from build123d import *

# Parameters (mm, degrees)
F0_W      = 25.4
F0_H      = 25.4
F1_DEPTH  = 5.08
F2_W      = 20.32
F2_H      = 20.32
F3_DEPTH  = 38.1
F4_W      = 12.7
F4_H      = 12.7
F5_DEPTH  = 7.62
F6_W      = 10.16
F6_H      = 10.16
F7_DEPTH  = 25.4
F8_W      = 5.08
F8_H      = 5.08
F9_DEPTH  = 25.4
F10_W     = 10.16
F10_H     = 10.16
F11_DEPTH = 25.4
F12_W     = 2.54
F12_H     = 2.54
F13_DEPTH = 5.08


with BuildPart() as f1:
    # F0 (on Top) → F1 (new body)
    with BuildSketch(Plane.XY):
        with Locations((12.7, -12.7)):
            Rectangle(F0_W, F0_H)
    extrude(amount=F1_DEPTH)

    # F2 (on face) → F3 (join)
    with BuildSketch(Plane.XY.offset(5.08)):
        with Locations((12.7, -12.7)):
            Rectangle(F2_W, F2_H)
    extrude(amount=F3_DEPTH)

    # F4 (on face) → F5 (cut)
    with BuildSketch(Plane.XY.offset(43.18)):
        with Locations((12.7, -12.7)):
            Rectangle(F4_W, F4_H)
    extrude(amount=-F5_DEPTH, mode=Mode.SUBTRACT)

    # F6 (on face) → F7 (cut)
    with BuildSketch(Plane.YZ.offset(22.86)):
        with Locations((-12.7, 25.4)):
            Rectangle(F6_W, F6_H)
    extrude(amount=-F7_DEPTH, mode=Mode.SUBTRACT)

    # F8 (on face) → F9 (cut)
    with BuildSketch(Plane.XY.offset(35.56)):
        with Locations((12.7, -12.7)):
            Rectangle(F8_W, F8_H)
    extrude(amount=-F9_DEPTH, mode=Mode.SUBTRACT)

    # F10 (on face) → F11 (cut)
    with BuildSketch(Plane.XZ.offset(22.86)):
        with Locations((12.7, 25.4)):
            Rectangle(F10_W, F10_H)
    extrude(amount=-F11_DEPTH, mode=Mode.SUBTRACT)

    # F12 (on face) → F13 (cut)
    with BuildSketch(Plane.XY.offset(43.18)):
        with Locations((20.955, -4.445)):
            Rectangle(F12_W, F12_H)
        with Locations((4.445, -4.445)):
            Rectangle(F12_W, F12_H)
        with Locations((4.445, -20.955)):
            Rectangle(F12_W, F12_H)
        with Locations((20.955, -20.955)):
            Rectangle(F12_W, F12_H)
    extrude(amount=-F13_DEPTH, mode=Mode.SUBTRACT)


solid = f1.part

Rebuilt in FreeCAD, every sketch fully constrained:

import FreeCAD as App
import Part
import Sketcher

V = App.Vector
Q = App.Units.Quantity


def add_polygon(sketch, points):
    """Adds a closed chain of lines whose ends are joined by coincident constraints."""
    first, n = sketch.GeometryCount, len(points)
    for a, b in zip(points, points[1:] + points[:1]):
        sketch.addGeometry(Part.LineSegment(App.Vector(*a, 0), App.Vector(*b, 0)), False)
    for i in range(n):
        sketch.addConstraint(Sketcher.Constraint("Coincident", first + i, 2, first + (i + 1) % n, 1))

doc = App.newDocument("Part")
body = doc.addObject("PartDesign::Body", "Body")

# Sketch on XY plane
sketch1 = body.newObject("Sketcher::SketchObject", "Sketch")
sketch1.AttachmentSupport = (doc.getObject("XY_Plane"), [""])
sketch1.MapMode = "FlatFace"
add_polygon(sketch1, [(0, 0), (0, -25), (25, -25), (25, 0)])  # lines 0-3
sketch1.addConstraint([
    Sketcher.Constraint("Vertical", 0),
    Sketcher.Constraint("Horizontal", 1),
    Sketcher.Constraint("Vertical", 2),
    Sketcher.Constraint("Horizontal", 3),
    Sketcher.Constraint("Coincident", 3, 2, -1, 1),
    Sketcher.Constraint("Equal", 3, 0),
    Sketcher.Constraint("DistanceX", 1, 1, 1, 2, Q("1 in")),
])
pad1 = body.newObject("PartDesign::Pad", "Pad")
pad1.Profile = sketch1
pad1.Length = Q("0.2 in")

# Sketch on XY plane
sketch2 = body.newObject("Sketcher::SketchObject", "Sketch001")
sketch2.AttachmentSupport = (doc.getObject("XY_Plane"), [""])
sketch2.MapMode = "FlatFace"
sketch2.AttachmentOffset = App.Placement(V(0, 0, 0.2 * 25.4), App.Rotation())
add_polygon(sketch2, [(3, -3), (3, -23), (23, -23), (23, -3)])  # lines 0-3
sketch2.addConstraint([
    Sketcher.Constraint("Vertical", 0),
    Sketcher.Constraint("Horizontal", 1),
    Sketcher.Constraint("Vertical", 2),
    Sketcher.Constraint("Horizontal", 3),
    Sketcher.Constraint("Equal", 3, 0),
    Sketcher.Constraint("DistanceX", 1, 1, 1, 2, Q("0.8 in")),
    Sketcher.Constraint("DistanceX", -1, 1, 0, 2, Q("0.1 in")),
    Sketcher.Constraint("DistanceY", 0, 2, -1, 1, Q("0.9 in")),
])
pad2 = body.newObject("PartDesign::Pad", "Pad001")
pad2.Profile = sketch2
pad2.Length = Q("1.5 in")

# Sketch on XY plane
sketch3 = body.newObject("Sketcher::SketchObject", "Sketch002")
sketch3.AttachmentSupport = (doc.getObject("XY_Plane"), [""])
sketch3.MapMode = "FlatFace"
sketch3.AttachmentOffset = App.Placement(V(0, 0, 1.7 * 25.4), App.Rotation())
add_polygon(sketch3, [(6, -6), (6, -19), (19, -19), (19, -6)])  # lines 0-3
sketch3.addConstraint([
    Sketcher.Constraint("Vertical", 0),
    Sketcher.Constraint("Horizontal", 1),
    Sketcher.Constraint("Vertical", 2),
    Sketcher.Constraint("Horizontal", 3),
    Sketcher.Constraint("Equal", 3, 0),
    Sketcher.Constraint("DistanceX", 1, 1, 1, 2, Q("0.5 in")),
    Sketcher.Constraint("DistanceX", -1, 1, 0, 2, Q("0.25 in")),
    Sketcher.Constraint("DistanceY", 0, 2, -1, 1, Q("0.75 in")),
])
pocket1 = body.newObject("PartDesign::Pocket", "Pocket")
pocket1.Profile = sketch3
pocket1.Length = Q("0.3 in")

# Sketch on YZ plane
sketch4 = body.newObject("Sketcher::SketchObject", "Sketch003")
sketch4.AttachmentSupport = (doc.getObject("YZ_Plane"), [""])
sketch4.MapMode = "FlatFace"
sketch4.AttachmentOffset = App.Placement(V(0, 0, 0.9 * 25.4), App.Rotation())
add_polygon(sketch4, [(-18, 30), (-18, 20), (-8, 20), (-8, 30)])  # lines 0-3
sketch4.addConstraint([
    Sketcher.Constraint("Vertical", 0),
    Sketcher.Constraint("Horizontal", 1),
    Sketcher.Constraint("Vertical", 2),
    Sketcher.Constraint("Horizontal", 3),
    Sketcher.Constraint("Equal", 3, 0),
    Sketcher.Constraint("DistanceX", 1, 1, 1, 2, Q("0.4 in")),
    Sketcher.Constraint("DistanceX", 0, 2, -1, 1, Q("0.7 in")),
    Sketcher.Constraint("DistanceY", -1, 1, 0, 2, Q("0.8 in")),
])
pocket2 = body.newObject("PartDesign::Pocket", "Pocket001")
pocket2.Profile = sketch4
pocket2.Length = Q("1 in")

# Sketch on XY plane
sketch5 = body.newObject("Sketcher::SketchObject", "Sketch004")
sketch5.AttachmentSupport = (doc.getObject("XY_Plane"), [""])
sketch5.MapMode = "FlatFace"
sketch5.AttachmentOffset = App.Placement(V(0, 0, 1.4 * 25.4), App.Rotation())
add_polygon(sketch5, [(10, -10), (10, -15), (15, -15), (15, -10)])  # lines 0-3
sketch5.addConstraint([
    Sketcher.Constraint("Vertical", 0),
    Sketcher.Constraint("Horizontal", 1),
    Sketcher.Constraint("Vertical", 2),
    Sketcher.Constraint("Horizontal", 3),
    Sketcher.Constraint("Equal", 3, 0),
    Sketcher.Constraint("DistanceX", 1, 1, 1, 2, Q("0.2 in")),
    Sketcher.Constraint("DistanceX", -1, 1, 0, 2, Q("0.4 in")),
    Sketcher.Constraint("DistanceY", 0, 2, -1, 1, Q("0.6 in")),
])
pocket3 = body.newObject("PartDesign::Pocket", "Pocket002")
pocket3.Profile = sketch5
pocket3.Length = Q("1 in")

# Sketch on XZ plane
sketch6 = body.newObject("Sketcher::SketchObject", "Sketch005")
sketch6.AttachmentSupport = (doc.getObject("XZ_Plane"), [""])
sketch6.MapMode = "FlatFace"
sketch6.AttachmentOffset = App.Placement(V(0, 0, 0.9 * 25.4), App.Rotation())
add_polygon(sketch6, [(8, 30), (8, 20), (18, 20), (18, 30)])  # lines 0-3
sketch6.addConstraint([
    Sketcher.Constraint("Vertical", 0),
    Sketcher.Constraint("Horizontal", 1),
    Sketcher.Constraint("Vertical", 2),
    Sketcher.Constraint("Horizontal", 3),
    Sketcher.Constraint("Equal", 3, 0),
    Sketcher.Constraint("DistanceX", 1, 1, 1, 2, Q("0.4 in")),
    Sketcher.Constraint("DistanceX", -1, 1, 0, 2, Q("0.3 in")),
    Sketcher.Constraint("DistanceY", -1, 1, 0, 2, Q("0.8 in")),
])
pocket4 = body.newObject("PartDesign::Pocket", "Pocket003")
pocket4.Profile = sketch6
pocket4.Length = Q("1 in")

# Sketch on XY plane
sketch7 = body.newObject("Sketcher::SketchObject", "Sketch006")
sketch7.AttachmentSupport = (doc.getObject("XY_Plane"), [""])
sketch7.MapMode = "FlatFace"
sketch7.AttachmentOffset = App.Placement(V(0, 0, 1.7 * 25.4), App.Rotation())
add_polygon(sketch7, [(19.7, -3.2), (19.7, -5.7), (22.2, -5.7), (22.2, -3.2)])  # lines 0-3
add_polygon(sketch7, [(3.2, -3.2), (3.2, -5.7), (5.7, -5.7), (5.7, -3.2)])  # lines 4-7
add_polygon(sketch7, [(3.2, -19.7), (3.2, -22.2), (5.7, -22.2), (5.7, -19.7)])  # lines 8-11
add_polygon(sketch7, [(19.7, -19.7), (19.7, -22.2), (22.2, -22.2), (22.2, -19.7)])  # lines 12-15
sketch7.addConstraint([
    Sketcher.Constraint("Vertical", 0),
    Sketcher.Constraint("Horizontal", 1),
    Sketcher.Constraint("Vertical", 2),
    Sketcher.Constraint("Horizontal", 3),
    Sketcher.Constraint("Vertical", 4),
    Sketcher.Constraint("Horizontal", 5),
    Sketcher.Constraint("Vertical", 6),
    Sketcher.Constraint("Horizontal", 7),
    Sketcher.Constraint("Vertical", 8),
    Sketcher.Constraint("Horizontal", 9),
    Sketcher.Constraint("Vertical", 10),
    Sketcher.Constraint("Horizontal", 11),
    Sketcher.Constraint("Vertical", 12),
    Sketcher.Constraint("Horizontal", 13),
    Sketcher.Constraint("Vertical", 14),
    Sketcher.Constraint("Horizontal", 15),
    Sketcher.Constraint("Horizontal", 1, 2, 4, 2),
    Sketcher.Constraint("Horizontal", 3, 2, 6, 2),
    Sketcher.Constraint("Horizontal", 9, 2, 12, 2),
    Sketcher.Constraint("Horizontal", 11, 2, 14, 2),
    Sketcher.Constraint("Vertical", 7, 2, 8, 2),
    Sketcher.Constraint("Vertical", 6, 2, 9, 2),
    Sketcher.Constraint("Vertical", 3, 2, 12, 2),
    Sketcher.Constraint("Vertical", 2, 2, 13, 2),
    Sketcher.Constraint("Equal", 3, 5),
    Sketcher.Constraint("Equal", 15, 0),
    Sketcher.Constraint("Equal", 6, 8),
    Sketcher.Constraint("DistanceX", 1, 1, 1, 2, Q("0.1 in")),
    Sketcher.Constraint("DistanceX", 4, 2, 0, 2, Q("0.65 in")),
    Sketcher.Constraint("DistanceY", 8, 2, 4, 2, Q("0.65 in")),
    Sketcher.Constraint("DistanceX", -1, 1, 0, 2, Q("0.775 in")),
    Sketcher.Constraint("DistanceY", 0, 2, -1, 1, Q("0.225 in")),
])
pocket5 = body.newObject("PartDesign::Pocket", "Pocket004")
pocket5.Profile = sketch7
pocket5.Length = Q("0.2 in")

doc.recompute()
